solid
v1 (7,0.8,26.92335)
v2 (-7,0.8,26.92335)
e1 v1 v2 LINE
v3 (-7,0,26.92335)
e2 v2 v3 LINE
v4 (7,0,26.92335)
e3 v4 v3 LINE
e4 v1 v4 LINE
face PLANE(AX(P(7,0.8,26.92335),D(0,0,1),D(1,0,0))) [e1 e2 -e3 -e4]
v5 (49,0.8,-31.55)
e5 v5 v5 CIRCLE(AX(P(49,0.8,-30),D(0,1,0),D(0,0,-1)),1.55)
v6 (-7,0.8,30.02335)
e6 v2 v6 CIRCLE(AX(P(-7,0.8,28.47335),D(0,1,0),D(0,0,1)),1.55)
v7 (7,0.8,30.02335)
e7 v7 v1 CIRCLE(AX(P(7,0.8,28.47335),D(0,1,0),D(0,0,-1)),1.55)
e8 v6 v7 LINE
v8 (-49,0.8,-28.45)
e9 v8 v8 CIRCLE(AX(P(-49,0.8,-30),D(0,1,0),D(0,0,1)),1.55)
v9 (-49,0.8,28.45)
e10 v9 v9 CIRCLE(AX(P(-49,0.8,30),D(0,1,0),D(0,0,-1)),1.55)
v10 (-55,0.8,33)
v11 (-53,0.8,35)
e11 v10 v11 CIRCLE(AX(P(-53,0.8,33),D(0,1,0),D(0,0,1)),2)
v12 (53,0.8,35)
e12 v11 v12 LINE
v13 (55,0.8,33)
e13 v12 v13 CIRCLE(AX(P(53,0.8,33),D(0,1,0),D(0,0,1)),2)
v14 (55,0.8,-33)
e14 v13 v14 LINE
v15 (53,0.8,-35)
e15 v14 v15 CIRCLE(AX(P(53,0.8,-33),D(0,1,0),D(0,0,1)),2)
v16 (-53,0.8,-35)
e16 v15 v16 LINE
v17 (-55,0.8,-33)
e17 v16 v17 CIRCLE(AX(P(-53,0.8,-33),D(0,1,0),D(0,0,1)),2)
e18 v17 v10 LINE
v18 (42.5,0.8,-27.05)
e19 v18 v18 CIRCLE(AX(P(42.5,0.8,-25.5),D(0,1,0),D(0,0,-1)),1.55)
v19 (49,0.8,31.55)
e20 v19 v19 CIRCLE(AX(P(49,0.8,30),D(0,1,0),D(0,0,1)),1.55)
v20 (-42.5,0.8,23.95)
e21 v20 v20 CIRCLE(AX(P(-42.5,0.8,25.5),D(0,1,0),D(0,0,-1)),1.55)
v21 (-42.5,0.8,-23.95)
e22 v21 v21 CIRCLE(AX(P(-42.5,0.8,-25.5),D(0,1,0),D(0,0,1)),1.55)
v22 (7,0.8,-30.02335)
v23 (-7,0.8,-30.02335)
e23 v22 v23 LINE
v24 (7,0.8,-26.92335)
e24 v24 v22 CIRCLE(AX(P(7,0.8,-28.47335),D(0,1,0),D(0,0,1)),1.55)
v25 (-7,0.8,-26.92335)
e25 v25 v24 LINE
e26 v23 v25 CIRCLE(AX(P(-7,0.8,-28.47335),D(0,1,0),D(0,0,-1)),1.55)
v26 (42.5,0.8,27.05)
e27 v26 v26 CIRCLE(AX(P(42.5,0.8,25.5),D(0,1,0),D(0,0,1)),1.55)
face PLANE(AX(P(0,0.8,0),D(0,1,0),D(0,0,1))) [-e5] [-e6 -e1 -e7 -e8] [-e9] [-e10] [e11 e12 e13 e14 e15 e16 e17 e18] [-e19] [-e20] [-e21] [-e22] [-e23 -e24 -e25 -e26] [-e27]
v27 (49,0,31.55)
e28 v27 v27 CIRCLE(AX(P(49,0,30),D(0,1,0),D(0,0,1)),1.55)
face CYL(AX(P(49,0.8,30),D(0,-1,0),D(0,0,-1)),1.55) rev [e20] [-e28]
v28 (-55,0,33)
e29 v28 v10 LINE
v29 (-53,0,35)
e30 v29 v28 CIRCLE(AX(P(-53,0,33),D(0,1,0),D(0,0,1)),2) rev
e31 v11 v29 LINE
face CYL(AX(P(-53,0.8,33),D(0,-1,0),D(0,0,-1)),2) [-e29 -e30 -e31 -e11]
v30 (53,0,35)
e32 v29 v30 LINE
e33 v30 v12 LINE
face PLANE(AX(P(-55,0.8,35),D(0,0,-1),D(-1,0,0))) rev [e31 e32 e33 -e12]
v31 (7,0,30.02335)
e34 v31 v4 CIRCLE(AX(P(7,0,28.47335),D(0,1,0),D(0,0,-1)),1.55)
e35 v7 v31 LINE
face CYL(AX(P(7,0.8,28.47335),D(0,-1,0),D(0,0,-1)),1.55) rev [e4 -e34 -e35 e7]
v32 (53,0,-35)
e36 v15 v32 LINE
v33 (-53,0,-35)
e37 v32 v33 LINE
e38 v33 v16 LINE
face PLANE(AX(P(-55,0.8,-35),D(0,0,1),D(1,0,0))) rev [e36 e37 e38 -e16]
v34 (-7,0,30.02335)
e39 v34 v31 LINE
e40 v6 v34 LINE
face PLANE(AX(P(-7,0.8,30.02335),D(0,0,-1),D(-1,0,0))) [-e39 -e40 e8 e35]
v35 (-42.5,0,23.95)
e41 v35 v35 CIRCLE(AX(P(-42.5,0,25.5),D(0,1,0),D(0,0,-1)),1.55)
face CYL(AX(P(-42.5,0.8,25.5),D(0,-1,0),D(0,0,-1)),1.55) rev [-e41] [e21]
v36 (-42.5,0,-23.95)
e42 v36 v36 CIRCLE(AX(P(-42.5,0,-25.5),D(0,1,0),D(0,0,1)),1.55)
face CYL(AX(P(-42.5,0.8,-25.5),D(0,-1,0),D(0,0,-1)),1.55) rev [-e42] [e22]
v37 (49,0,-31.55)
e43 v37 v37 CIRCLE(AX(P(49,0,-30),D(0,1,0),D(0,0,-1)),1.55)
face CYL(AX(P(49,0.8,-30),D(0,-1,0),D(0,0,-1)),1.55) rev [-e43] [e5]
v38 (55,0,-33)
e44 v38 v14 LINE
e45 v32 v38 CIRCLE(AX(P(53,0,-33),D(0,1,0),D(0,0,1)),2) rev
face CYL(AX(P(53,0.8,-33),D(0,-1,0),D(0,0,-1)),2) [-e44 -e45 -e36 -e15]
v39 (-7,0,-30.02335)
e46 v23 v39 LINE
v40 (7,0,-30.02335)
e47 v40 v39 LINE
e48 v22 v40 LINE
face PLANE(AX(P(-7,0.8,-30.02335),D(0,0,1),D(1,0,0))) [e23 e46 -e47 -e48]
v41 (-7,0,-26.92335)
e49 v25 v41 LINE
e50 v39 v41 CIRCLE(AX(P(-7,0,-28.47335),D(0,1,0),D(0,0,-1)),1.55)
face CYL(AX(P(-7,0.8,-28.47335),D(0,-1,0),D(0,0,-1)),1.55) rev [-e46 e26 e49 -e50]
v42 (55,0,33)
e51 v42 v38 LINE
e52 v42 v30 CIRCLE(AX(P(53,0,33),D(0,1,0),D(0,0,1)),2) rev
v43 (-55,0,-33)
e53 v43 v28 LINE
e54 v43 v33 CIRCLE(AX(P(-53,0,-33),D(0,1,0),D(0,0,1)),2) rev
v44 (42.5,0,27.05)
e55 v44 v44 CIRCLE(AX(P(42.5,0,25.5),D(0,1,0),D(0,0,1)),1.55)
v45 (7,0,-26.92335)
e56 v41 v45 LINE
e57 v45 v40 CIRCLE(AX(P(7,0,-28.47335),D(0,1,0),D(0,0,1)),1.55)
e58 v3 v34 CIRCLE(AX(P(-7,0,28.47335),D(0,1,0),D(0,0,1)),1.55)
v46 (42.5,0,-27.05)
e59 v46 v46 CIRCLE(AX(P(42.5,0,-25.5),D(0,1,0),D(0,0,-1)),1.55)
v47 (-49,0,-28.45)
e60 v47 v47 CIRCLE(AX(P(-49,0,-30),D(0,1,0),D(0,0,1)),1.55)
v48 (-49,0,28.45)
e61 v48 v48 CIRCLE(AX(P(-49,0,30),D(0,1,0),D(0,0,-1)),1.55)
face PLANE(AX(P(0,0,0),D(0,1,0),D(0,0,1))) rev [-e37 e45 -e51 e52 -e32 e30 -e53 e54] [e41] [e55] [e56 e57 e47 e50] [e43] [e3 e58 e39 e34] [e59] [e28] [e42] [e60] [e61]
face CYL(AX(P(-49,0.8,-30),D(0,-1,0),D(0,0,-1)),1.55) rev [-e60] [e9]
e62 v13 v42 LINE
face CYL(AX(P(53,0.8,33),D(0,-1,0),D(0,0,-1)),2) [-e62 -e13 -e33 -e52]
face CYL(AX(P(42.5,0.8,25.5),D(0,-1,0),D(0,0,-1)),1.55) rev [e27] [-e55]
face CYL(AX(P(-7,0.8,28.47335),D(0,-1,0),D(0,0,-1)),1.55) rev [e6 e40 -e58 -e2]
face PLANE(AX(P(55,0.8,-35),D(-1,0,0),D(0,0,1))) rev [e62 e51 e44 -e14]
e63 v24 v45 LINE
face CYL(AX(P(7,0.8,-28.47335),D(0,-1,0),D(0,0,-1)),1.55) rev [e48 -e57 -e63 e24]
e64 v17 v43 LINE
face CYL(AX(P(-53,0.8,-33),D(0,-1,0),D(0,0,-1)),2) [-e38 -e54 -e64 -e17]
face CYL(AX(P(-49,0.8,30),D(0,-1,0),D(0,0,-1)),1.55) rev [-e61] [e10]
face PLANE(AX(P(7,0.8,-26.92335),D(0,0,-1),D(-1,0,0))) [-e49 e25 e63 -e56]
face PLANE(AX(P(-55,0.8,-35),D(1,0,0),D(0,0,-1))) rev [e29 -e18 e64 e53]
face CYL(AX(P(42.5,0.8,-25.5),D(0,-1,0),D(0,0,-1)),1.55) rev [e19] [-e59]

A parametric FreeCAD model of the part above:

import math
import FreeCAD as App
import Part
import Sketcher
from FreeCAD import Vector
Q = App.Units.Quantity


def edges_at(feature, points):
    """Names of the edges that pass closest to the given points."""
    edges = feature.Shape.Edges
    near = lambda p: min(range(len(edges)), key=lambda i: edges[i].distToShape(Part.Vertex(*p))[0])
    return sorted({f"Edge{near(p) + 1}" for p in points})

doc = App.newDocument("Part")
params = doc.addObject("Spreadsheet::Sheet", "Params")
for row, (alias, value) in enumerate([
    ("sketch1_diameter", "3.1 mm"),
    ("sketch1_width", "110 mm"),
    ("sketch1_width2", "14 mm"),
    ("sketch1_height", "70 mm"),
    ("pad1_length", "0.8 mm"),
    ("fillet_radius", "2 mm"),
    ("fillet2_radius", "2 mm"),
    ("fillet3_radius", "2 mm"),
    ("fillet4_radius", "2 mm"),
], start=1):
    params.set(f"A{row}", alias)
    params.set(f"B{row}", "=" + value)
    params.setAlias(f"B{row}", alias)

body = doc.addObject("PartDesign::Body", "Body")

# Sketch on XZ plane
sketch1 = body.newObject("Sketcher::SketchObject", "Sketch")
sketch1.AttachmentSupport = (doc.getObject("XZ_Plane"), [""])
sketch1.MapMode = "FlatFace"
sketch1.addGeometry([
    Part.LineSegment(Vector(-55, -35, 0), Vector(-55, 35, 0)),  # 0
    Part.LineSegment(Vector(-55, 35, 0), Vector(55, 35, 0)),  # 1
    Part.LineSegment(Vector(55, 35, 0), Vector(55, -35, 0)),  # 2
    Part.LineSegment(Vector(55, -35, 0), Vector(-55, -35, 0)),  # 3
    Part.Circle(Vector(-49, 30, 0), Vector(0, 0, 1), 1.6),  # 4
    Part.Circle(Vector(-42.5, 25.5, 0), Vector(0, 0, 1), 1.6),  # 5
    Part.LineSegment(Vector(-7, 26.9, 0), Vector(7, 26.9, 0)),  # 6
    Part.ArcOfCircle(Part.Circle(Vector(7, 28.5, 0), Vector(0, 0, 1), 1.6), math.radians(-90), math.radians(90)),  # 7
    Part.LineSegment(Vector(7, 30, 0), Vector(-7, 30, 0)),  # 8
    Part.ArcOfCircle(Part.Circle(Vector(-7, 28.5, 0), Vector(0, 0, 1), 1.6), math.radians(90), math.radians(270)),  # 9
    Part.Circle(Vector(49, 30, 0), Vector(0, 0, 1), 1.6),  # 10
    Part.Circle(Vector(42.5, 25.5, 0), Vector(0, 0, 1), 1.6),  # 11
    Part.Circle(Vector(-42.5, -25.5, 0), Vector(0, 0, 1), 1.6),  # 12
    Part.Circle(Vector(-49, -30, 0), Vector(0, 0, 1), 1.6),  # 13
    Part.ArcOfCircle(Part.Circle(Vector(-7, -28.5, 0), Vector(0, 0, 1), 1.6), math.radians(90), math.radians(270)),  # 14
    Part.LineSegment(Vector(-7, -30, 0), Vector(7, -30, 0)),  # 15
    Part.ArcOfCircle(Part.Circle(Vector(7, -28.5, 0), Vector(0, 0, 1), 1.6), math.radians(-90), math.radians(90)),  # 16
    Part.LineSegment(Vector(7, -26.9, 0), Vector(-7, -26.9, 0)),  # 17
    Part.Circle(Vector(42.5, -25.5, 0), Vector(0, 0, 1), 1.6),  # 18
    Part.Circle(Vector(49, -30, 0), Vector(0, 0, 1), 1.6),  # 19
], False)
sketch1.addConstraint([
    Sketcher.Constraint("Coincident", 0, 2, 1, 1),
    Sketcher.Constraint("Coincident", 1, 2, 2, 1),
    Sketcher.Constraint("Coincident", 2, 2, 3, 1),
    Sketcher.Constraint("Coincident", 3, 2, 0, 1),
    Sketcher.Constraint("Tangent", 6, 2, 7, 1),
    Sketcher.Constraint("Tangent", 7, 2, 8, 1),
    Sketcher.Constraint("Tangent", 8, 2, 9, 1),
    Sketcher.Constraint("Tangent", 9, 2, 6, 1),
    Sketcher.Constraint("Tangent", 14, 2, 15, 1),
    Sketcher.Constraint("Tangent", 15, 2, 16, 1),
    Sketcher.Constraint("Tangent", 16, 2, 17, 1),
    Sketcher.Constraint("Tangent", 17, 2, 14, 1),
    Sketcher.Constraint("Vertical", 0),
    Sketcher.Constraint("Horizontal", 1),
    Sketcher.Constraint("Vertical", 2),
    Sketcher.Constraint("Horizontal", 3),
    Sketcher.Constraint("Horizontal", 6),
    Sketcher.Constraint("Horizontal", 8),
    Sketcher.Constraint("Horizontal", 15),
    Sketcher.Constraint("Horizontal", 17),
    Sketcher.Constraint("Equal", 4, 5),
    Sketcher.Constraint("Equal", 5, 7),
    Sketcher.Constraint("Equal", 9, 10),
    Sketcher.Constraint("Equal", 10, 11),
    Sketcher.Constraint("Equal", 11, 12),
    Sketcher.Constraint("Equal", 12, 13),
    Sketcher.Constraint("Equal", 13, 14),
    Sketcher.Constraint("Equal", 16, 18),
    Sketcher.Constraint("Equal", 18, 19),
    Sketcher.Constraint("Symmetric", 11, 3, 12, 3, -1, 1),
    Sketcher.Constraint("Symmetric", 10, 3, 13, 3, -1, 1),
    Sketcher.Constraint("Symmetric", 7, 3, 14, 3, -1, 1),
    Sketcher.Constraint("Symmetric", 5, 3, 18, 3, -1, 1),
    Sketcher.Constraint("Symmetric", 4, 3, 19, 3, -1, 1),
    Sketcher.Constraint("Symmetric", 0, 2, 2, 2, -1, 1),
    Sketcher.Constraint("Symmetric", 4, 3, 10, 3, -2),
    Sketcher.Constraint("Symmetric", 5, 3, 11, 3, -2),
    Sketcher.Constraint("Vertical", 9, 3, 14, 3),
    Sketcher.Constraint("Vertical", 7, 3, 16, 3),
    Sketcher.Constraint("Diameter", 4, Q("3.1 mm")),
    Sketcher.Constraint("DistanceX", 1, 1, 1, 2, Q("110 mm")),
    Sketcher.Constraint("DistanceX", 6, 1, 6, 2, Q("14 mm")),
    Sketcher.Constraint("DistanceY", 0, 1, 0, 2, Q("70 mm")),
    Sketcher.Constraint("DistanceX", 4, 3, -1, 1, Q("49 mm")),
    Sketcher.Constraint("DistanceY", -1, 1, 4, 3, Q("30 mm")),
    Sketcher.Constraint("DistanceX", 5, 3, 11, 3, Q("85 mm")),
    Sketcher.Constraint("DistanceY", 12, 3, 5, 3, Q("51 mm")),
    Sketcher.Constraint("DistanceY", 14, 3, 9, 3, Q("56.946701 mm")),
])
sketch1.setExpression("Constraints[39]", "Params.sketch1_diameter")
sketch1.setExpression("Constraints[40]", "Params.sketch1_width")
sketch1.setExpression("Constraints[41]", "Params.sketch1_width2")
sketch1.setExpression("Constraints[42]", "Params.sketch1_height")
pad1 = body.newObject("PartDesign::Pad", "Pad")
pad1.Profile = sketch1
pad1.setExpression("Length", "Params.pad1_length")
pad1.Reversed = True
doc.recompute()

fillet = body.newObject("PartDesign::Fillet", "Fillet")
fillet.Base = (pad1, edges_at(pad1, [(55, 0.4, -35)]))
fillet.setExpression("Radius", "Params.fillet_radius")
doc.recompute()

fillet2 = body.newObject("PartDesign::Fillet", "Fillet001")
fillet2.Base = (fillet, edges_at(fillet, [(-55, 0.4, -35)]))
fillet2.setExpression("Radius", "Params.fillet2_radius")
doc.recompute()

fillet3 = body.newObject("PartDesign::Fillet", "Fillet002")
fillet3.Base = (fillet2, edges_at(fillet2, [(-55, 0.4, 35)]))
fillet3.setExpression("Radius", "Params.fillet3_radius")
doc.recompute()

fillet4 = body.newObject("PartDesign::Fillet", "Fillet003")
fillet4.Base = (fillet3, edges_at(fillet3, [(55, 0.4, 35)]))
fillet4.setExpression("Radius", "Params.fillet4_radius")

doc.recompute()
